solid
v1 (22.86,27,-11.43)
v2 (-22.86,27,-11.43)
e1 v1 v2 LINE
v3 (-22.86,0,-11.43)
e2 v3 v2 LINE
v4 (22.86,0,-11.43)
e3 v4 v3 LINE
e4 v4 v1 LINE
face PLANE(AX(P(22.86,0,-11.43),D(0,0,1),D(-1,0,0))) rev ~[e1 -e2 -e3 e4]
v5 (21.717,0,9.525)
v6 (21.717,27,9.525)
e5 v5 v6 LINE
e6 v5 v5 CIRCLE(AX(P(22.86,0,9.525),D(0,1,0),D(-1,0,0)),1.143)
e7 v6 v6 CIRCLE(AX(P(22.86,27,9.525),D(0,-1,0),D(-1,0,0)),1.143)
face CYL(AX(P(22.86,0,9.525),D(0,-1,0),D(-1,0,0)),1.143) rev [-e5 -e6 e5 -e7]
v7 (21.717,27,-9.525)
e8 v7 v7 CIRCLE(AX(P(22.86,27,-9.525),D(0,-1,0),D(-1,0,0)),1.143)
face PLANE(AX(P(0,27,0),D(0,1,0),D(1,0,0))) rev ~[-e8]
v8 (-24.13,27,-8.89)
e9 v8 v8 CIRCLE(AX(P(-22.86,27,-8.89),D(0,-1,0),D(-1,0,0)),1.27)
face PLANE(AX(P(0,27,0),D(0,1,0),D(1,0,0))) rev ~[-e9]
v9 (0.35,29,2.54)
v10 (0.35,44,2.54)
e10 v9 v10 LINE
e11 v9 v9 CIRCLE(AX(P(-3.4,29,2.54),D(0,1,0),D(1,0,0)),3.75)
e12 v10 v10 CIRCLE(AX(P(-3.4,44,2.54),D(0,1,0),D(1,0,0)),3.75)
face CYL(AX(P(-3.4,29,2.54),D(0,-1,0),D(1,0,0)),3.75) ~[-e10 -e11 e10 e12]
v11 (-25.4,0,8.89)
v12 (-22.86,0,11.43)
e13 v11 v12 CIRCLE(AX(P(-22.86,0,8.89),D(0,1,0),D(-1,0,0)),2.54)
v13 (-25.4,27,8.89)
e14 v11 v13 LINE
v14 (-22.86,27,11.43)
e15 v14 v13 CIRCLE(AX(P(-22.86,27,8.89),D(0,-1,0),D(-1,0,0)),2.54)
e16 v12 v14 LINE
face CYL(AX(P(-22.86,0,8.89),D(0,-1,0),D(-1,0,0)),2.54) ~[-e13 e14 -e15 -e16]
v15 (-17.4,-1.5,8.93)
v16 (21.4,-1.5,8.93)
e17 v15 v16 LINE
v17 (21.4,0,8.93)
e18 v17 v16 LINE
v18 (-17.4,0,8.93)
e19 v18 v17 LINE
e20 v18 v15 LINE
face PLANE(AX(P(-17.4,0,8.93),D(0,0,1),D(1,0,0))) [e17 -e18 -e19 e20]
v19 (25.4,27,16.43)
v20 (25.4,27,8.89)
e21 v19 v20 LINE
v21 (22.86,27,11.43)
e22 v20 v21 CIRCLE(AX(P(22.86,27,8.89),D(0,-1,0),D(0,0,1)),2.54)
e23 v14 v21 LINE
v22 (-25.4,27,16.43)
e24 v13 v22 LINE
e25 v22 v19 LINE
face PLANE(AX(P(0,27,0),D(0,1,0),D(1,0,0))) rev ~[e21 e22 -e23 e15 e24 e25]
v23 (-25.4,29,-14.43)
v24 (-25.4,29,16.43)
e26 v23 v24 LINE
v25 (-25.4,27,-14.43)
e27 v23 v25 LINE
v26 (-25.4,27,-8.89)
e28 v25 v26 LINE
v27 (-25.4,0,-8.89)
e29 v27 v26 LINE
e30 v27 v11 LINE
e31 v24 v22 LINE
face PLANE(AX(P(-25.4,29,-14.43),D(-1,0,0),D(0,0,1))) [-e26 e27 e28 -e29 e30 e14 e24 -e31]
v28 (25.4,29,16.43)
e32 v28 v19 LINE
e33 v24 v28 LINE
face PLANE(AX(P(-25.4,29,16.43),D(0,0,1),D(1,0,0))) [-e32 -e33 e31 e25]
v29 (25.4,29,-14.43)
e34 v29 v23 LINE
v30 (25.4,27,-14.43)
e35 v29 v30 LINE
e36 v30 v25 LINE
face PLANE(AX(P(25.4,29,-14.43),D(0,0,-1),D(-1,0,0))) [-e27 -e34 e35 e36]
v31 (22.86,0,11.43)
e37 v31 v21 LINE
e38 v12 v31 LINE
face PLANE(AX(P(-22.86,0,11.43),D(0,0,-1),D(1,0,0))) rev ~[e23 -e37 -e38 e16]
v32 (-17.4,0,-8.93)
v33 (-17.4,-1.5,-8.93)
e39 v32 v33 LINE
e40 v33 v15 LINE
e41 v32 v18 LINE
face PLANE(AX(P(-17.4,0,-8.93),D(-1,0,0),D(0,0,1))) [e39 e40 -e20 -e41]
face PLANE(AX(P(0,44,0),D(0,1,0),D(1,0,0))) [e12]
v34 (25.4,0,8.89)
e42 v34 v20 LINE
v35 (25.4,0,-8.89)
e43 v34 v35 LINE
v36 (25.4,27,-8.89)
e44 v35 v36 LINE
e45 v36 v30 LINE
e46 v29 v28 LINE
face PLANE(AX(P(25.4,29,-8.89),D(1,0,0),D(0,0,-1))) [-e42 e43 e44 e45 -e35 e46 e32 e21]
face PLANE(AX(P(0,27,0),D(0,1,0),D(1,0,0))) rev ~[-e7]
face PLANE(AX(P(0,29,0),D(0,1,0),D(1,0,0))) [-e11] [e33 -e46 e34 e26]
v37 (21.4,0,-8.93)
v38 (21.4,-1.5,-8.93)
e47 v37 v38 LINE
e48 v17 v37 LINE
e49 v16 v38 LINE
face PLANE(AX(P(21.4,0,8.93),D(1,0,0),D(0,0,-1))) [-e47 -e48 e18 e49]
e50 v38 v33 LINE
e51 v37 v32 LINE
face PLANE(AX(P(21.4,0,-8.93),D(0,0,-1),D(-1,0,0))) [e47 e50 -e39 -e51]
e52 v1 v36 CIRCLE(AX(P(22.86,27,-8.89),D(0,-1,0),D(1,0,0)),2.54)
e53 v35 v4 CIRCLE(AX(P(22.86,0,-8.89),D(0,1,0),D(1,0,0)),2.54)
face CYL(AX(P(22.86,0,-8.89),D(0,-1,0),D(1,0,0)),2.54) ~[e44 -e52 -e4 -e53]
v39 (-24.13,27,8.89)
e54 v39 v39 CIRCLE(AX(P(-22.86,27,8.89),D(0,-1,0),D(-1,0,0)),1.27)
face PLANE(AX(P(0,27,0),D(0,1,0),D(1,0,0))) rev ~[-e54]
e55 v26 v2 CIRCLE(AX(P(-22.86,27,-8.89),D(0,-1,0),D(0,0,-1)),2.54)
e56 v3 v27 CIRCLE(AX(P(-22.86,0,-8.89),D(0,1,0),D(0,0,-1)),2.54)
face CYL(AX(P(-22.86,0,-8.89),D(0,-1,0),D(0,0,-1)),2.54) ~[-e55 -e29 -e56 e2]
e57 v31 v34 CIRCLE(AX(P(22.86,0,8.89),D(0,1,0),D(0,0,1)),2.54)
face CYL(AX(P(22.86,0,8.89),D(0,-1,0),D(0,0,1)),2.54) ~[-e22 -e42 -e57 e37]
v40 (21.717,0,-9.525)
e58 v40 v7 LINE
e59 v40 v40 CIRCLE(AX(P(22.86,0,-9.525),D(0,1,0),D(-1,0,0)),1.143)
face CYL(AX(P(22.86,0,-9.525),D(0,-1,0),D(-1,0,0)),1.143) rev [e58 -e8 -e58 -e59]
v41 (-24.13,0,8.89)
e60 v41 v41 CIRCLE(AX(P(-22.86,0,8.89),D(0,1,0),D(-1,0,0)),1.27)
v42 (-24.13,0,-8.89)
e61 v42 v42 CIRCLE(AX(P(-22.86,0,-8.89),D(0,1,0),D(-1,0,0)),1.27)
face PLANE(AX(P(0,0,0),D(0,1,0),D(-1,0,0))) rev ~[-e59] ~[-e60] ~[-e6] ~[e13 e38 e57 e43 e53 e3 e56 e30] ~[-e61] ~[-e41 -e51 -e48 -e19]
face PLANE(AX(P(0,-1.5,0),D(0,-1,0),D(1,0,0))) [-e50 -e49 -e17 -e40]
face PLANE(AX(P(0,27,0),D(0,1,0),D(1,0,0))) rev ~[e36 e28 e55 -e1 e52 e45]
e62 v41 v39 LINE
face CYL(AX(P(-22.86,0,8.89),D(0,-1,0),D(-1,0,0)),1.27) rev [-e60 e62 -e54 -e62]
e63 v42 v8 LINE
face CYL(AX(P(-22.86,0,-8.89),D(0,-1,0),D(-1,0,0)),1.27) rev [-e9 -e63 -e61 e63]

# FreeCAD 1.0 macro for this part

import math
import FreeCAD as App
import Part
import Sketcher
from FreeCAD import Vector
Q = App.Units.Quantity


def add_polygon(sketch, points):
    """Adds a closed chain of lines whose ends are joined by coincident constraints."""
    first, n = sketch.GeometryCount, len(points)
    for a, b in zip(points, points[1:] + points[:1]):
        sketch.addGeometry(Part.LineSegment(App.Vector(*a, 0), App.Vector(*b, 0)), False)
    for i in range(n):
        sketch.addConstraint(Sketcher.Constraint("Coincident", first + i, 2, first + (i + 1) % n, 1))

doc = App.newDocument("Part")
body = doc.addObject("PartDesign::Body", "Body")

# Sketch on XZ plane
sketch1 = doc.addObject("Sketcher::SketchObject", "Sketch")
body.addObject(sketch1)
sketch1.AttachmentSupport = (doc.XZ_Plane, [""])
sketch1.MapMode = "FlatFace"
sketch1.addGeometry([
    Part.ArcOfCircle(Part.Circle(Vector(-22.9, 8.9, 0), Vector(0, 0, 1), 2.5), math.radians(90), math.radians(180)),  # 0
    Part.LineSegment(Vector(-22.9, 11.4, 0), Vector(22.9, 11.4, 0)),  # 1
    Part.ArcOfCircle(Part.Circle(Vector(22.9, 8.9, 0), Vector(0, 0, 1), 2.5), math.radians(0), math.radians(90)),  # 2
    Part.LineSegment(Vector(25.4, 8.9, 0), Vector(25.4, -8.9, 0)),  # 3
    Part.ArcOfCircle(Part.Circle(Vector(22.9, -8.9, 0), Vector(0, 0, 1), 2.5), math.radians(-90), math.radians(0)),  # 4
    Part.LineSegment(Vector(22.9, -11.4, 0), Vector(-22.9, -11.4, 0)),  # 5
    Part.ArcOfCircle(Part.Circle(Vector(-22.9, -8.9, 0), Vector(0, 0, 1), 2.5), math.radians(180), math.radians(270)),  # 6
    Part.LineSegment(Vector(-25.4, -8.9, 0), Vector(-25.4, 8.9, 0)),  # 7
    Part.Circle(Vector(22.9, -9.5, 0), Vector(0, 0, 1), 1.1),  # 8
    Part.Circle(Vector(-22.9, -8.9, 0), Vector(0, 0, 1), 1.3),  # 9
    Part.Circle(Vector(22.9, 9.5, 0), Vector(0, 0, 1), 1.1),  # 10
    Part.Circle(Vector(-22.9, 8.9, 0), Vector(0, 0, 1), 1.3),  # 11
], False)
sketch1.addConstraint([
    Sketcher.Constraint("Tangent", 0, 1, 1, 1),
    Sketcher.Constraint("Tangent", 1, 2, 2, 2),
    Sketcher.Constraint("Tangent", 2, 1, 3, 1),
    Sketcher.Constraint("Tangent", 3, 2, 4, 2),
    Sketcher.Constraint("Tangent", 4, 1, 5, 1),
    Sketcher.Constraint("Tangent", 5, 2, 6, 2),
    Sketcher.Constraint("Tangent", 6, 1, 7, 1),
    Sketcher.Constraint("Tangent", 7, 2, 0, 2),
    Sketcher.Constraint("Horizontal", 1),
    Sketcher.Constraint("Vertical", 3),
    Sketcher.Constraint("Horizontal", 5),
    Sketcher.Constraint("Vertical", 7),
    Sketcher.Constraint("Coincident", 9, 3, 6, 3),
    Sketcher.Constraint("Coincident", 11, 3, 0, 3),
    Sketcher.Constraint("Equal", 0, 2),
    Sketcher.Constraint("Equal", 2, 4),
    Sketcher.Constraint("Equal", 4, 6),
    Sketcher.Constraint("Equal", 8, 10),
    Sketcher.Constraint("Equal", 9, 11),
    Sketcher.Constraint("Symmetric", 0, 3, 4, 3, -1, 1),
    Sketcher.Constraint("Symmetric", 8, 3, 10, 3, -1),
    Sketcher.Constraint("Vertical", 4, 3, 8, 3),
    Sketcher.Constraint("Diameter", 9, Q("2.54 mm")),
    Sketcher.Constraint("Radius", 0, Q("2.54 mm")),
    Sketcher.Constraint("Diameter", 8, Q("2.286 mm")),
    Sketcher.Constraint("DistanceY", 3, 2, 3, 1, Q("17.78 mm")),
    Sketcher.Constraint("DistanceX", 0, 3, -1, 1, Q("22.86 mm")),
    Sketcher.Constraint("DistanceY", 8, 3, 10, 3, Q("19.05 mm")),
])
pad1 = doc.addObject("PartDesign::Pad", "Pad")
body.addObject(pad1)
pad1.Profile = sketch1
pad1.Length = 29
pad1.Reversed = True

# Sketch on XZ plane
sketch2 = doc.addObject("Sketcher::SketchObject", "Sketch001")
body.addObject(sketch2)
sketch2.AttachmentSupport = (doc.XZ_Plane, [""])
sketch2.MapMode = "FlatFace"
sketch2.AttachmentOffset = App.Placement(Vector(0, 0, -29), App.Rotation())
sketch2.addGeometry(Part.Circle(Vector(-3.4, 2.5, 0), Vector(0, 0, 1), 3.8), False)
sketch2.addConstraint([
    Sketcher.Constraint("Diameter", 0, Q("7.5 mm")),
    Sketcher.Constraint("DistanceY", -1, 1, 0, 3, Q("2.54 mm")),
    Sketcher.Constraint("DistanceX", 0, 3, -1, 1, Q("3.4 mm")),
])
pad2 = doc.addObject("PartDesign::Pad", "Pad001")
body.addObject(pad2)
pad2.Profile = sketch2
pad2.Length = 15
pad2.Reversed = True

# Sketch on XZ plane
sketch3 = doc.addObject("Sketcher::SketchObject", "Sketch002")
body.addObject(sketch3)
sketch3.AttachmentSupport = (doc.XZ_Plane, [""])
sketch3.MapMode = "FlatFace"
add_polygon(sketch3, [(21, 9), (-17, 9), (-17, -9), (21, -9)])  # lines 0-3
sketch3.addConstraint([
    Sketcher.Constraint("Horizontal", 0),
    Sketcher.Constraint("Vertical", 1),
    Sketcher.Constraint("Horizontal", 2),
    Sketcher.Constraint("Vertical", 3),
    Sketcher.Constraint("DistanceX", 0, 2, 0, 1, Q("38.8 mm")),
    Sketcher.Constraint("DistanceY", 1, 2, 1, 1, Q("17.86 mm")),
    Sketcher.Constraint("DistanceX", 0, 2, -1, 1, Q("17.4 mm")),
    Sketcher.Constraint("DistanceY", -1, 1, 0, 2, Q("8.93 mm")),
])
pad3 = doc.addObject("PartDesign::Pad", "Pad002")
body.addObject(pad3)
pad3.Profile = sketch3
pad3.Length = 1.5

# Sketch on XZ plane
sketch4 = doc.addObject("Sketcher::SketchObject", "Sketch003")
body.addObject(sketch4)
sketch4.AttachmentSupport = (doc.XZ_Plane, [""])
sketch4.MapMode = "FlatFace"
sketch4.AttachmentOffset = App.Placement(Vector(0, 0, -29), App.Rotation())
add_polygon(sketch4, [(25, 16), (25, -14), (-25, -14), (-25, 16)])  # lines 0-3
sketch4.addConstraint([
    Sketcher.Constraint("Vertical", 0),
    Sketcher.Constraint("Horizontal", 1),
    Sketcher.Constraint("Vertical", 2),
    Sketcher.Constraint("Horizontal", 3),
    Sketcher.Constraint("DistanceX", 1, 2, 1, 1, Q("50.8 mm")),
    Sketcher.Constraint("DistanceY", 0, 2, 0, 1, Q("30.86 mm")),
    Sketcher.Constraint("DistanceX", -1, 1, 0, 2, Q("25.4 mm")),
    Sketcher.Constraint("DistanceY", 0, 2, -1, 1, Q("14.43 mm")),
])
pad4 = doc.addObject("PartDesign::Pad", "Pad003")
body.addObject(pad4)
pad4.Profile = sketch4
pad4.Length = 2

doc.recompute()
